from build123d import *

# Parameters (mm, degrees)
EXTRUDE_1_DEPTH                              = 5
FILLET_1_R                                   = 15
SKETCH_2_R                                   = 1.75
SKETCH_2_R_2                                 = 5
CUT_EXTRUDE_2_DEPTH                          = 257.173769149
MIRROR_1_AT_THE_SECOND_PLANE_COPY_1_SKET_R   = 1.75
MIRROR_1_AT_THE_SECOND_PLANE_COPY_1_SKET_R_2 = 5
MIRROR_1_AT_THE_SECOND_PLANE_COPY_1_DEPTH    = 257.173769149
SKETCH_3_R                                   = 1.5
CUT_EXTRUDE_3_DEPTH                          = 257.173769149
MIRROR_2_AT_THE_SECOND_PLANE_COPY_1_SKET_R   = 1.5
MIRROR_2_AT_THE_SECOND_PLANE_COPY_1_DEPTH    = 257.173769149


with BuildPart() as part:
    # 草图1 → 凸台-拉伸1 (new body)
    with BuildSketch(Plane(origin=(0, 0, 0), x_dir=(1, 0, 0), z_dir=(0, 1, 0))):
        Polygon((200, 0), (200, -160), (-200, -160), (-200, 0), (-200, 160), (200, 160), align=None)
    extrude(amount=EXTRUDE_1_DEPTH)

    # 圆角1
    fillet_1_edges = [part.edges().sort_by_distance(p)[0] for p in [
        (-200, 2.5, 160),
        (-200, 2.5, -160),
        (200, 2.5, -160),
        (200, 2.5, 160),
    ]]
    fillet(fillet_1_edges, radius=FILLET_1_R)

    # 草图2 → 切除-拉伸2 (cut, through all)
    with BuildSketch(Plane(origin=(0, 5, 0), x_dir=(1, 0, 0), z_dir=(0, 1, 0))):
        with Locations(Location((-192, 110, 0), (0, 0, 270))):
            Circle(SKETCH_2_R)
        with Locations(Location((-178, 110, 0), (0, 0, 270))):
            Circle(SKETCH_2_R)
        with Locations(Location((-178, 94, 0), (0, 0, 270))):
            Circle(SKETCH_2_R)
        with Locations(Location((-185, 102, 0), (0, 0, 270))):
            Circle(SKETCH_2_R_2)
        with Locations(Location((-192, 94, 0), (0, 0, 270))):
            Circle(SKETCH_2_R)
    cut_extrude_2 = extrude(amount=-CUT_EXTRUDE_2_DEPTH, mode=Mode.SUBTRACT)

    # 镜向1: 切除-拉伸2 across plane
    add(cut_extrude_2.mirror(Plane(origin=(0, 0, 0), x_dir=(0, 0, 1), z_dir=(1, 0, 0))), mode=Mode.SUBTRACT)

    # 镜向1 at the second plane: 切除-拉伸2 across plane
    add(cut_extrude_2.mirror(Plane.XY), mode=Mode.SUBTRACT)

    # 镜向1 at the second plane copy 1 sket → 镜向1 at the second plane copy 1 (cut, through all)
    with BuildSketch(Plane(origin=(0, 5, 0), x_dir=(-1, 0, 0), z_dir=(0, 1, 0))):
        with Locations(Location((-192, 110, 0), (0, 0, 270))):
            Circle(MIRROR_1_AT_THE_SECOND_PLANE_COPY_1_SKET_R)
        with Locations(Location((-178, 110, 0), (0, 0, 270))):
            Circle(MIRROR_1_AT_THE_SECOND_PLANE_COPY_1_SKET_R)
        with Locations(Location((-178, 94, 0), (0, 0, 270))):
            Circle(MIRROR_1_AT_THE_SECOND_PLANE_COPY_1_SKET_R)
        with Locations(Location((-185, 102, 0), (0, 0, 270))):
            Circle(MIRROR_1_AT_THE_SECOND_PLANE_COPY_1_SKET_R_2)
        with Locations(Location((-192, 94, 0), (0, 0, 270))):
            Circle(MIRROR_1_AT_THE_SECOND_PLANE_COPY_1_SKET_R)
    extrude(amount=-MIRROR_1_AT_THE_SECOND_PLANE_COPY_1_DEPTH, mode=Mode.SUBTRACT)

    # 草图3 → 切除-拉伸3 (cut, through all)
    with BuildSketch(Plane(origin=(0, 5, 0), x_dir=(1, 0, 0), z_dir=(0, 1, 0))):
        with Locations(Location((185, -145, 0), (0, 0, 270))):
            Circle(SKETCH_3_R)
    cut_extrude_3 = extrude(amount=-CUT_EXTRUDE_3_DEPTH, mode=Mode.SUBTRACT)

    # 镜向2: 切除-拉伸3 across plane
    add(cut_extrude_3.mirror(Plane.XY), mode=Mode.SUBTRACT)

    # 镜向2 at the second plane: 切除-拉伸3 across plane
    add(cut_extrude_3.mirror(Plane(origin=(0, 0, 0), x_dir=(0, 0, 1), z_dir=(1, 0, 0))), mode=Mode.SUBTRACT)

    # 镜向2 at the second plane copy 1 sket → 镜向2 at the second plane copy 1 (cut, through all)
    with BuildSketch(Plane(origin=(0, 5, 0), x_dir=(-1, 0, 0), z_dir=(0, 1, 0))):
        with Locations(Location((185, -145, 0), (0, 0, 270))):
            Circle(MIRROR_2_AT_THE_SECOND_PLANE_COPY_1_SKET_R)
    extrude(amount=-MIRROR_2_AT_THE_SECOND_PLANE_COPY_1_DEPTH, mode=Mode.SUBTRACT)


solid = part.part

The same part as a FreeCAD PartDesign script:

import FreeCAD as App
import Part
import Sketcher

V = App.Vector
Q = App.Units.Quantity


def edges_at(feature, points):
    """Names of the edges that pass closest to the given points."""
    edges = feature.Shape.Edges
    near = lambda p: min(range(len(edges)), key=lambda i: edges[i].distToShape(Part.Vertex(*p))[0])
    return sorted({f"Edge{near(p) + 1}" for p in points})


def add_polygon(sketch, points):
    """Adds a closed chain of lines whose ends are joined by coincident constraints."""
    first, n = sketch.GeometryCount, len(points)
    for a, b in zip(points, points[1:] + points[:1]):
        sketch.addGeometry(Part.LineSegment(App.Vector(*a, 0), App.Vector(*b, 0)), False)
    for i in range(n):
        sketch.addConstraint(Sketcher.Constraint("Coincident", first + i, 2, first + (i + 1) % n, 1))

doc = App.newDocument("Part")
params = doc.addObject("Spreadsheet::Sheet", "Params")
for row, (alias, value) in enumerate([
    ("sketch1_width", "400 mm"),
    ("sketch1_height", "320 mm"),
    ("pad1_length", "5 mm"),
    ("fillet_radius", "15 mm"),
    ("sketch2_diameter", "10 mm"),
    ("sketch2_diameter2", "3.5 mm"),
    ("sketch3_diameter", "10 mm"),
    ("sketch3_diameter2", "3.5 mm"),
    ("sketch4_diameter", "3 mm"),
    ("sketch5_diameter", "3 mm"),
], start=1):
    params.set(f"A{row}", alias)
    params.set(f"B{row}", "=" + value)
    params.setAlias(f"B{row}", alias)

body = doc.addObject("PartDesign::Body", "Body")

# Sketch on XZ plane
sketch1 = doc.addObject("Sketcher::SketchObject", "Sketch")
body.addObject(sketch1)
sketch1.AttachmentSupport = (doc.XZ_Plane, [""])
sketch1.MapMode = "FlatFace"
add_polygon(sketch1, [(200, 160), (200, -160), (-200, -160), (-200, 160)])  # lines 0-3
sketch1.addConstraint(Sketcher.Constraint("Vertical", 0))
sketch1.addConstraint(Sketcher.Constraint("Horizontal", 1))
sketch1.addConstraint(Sketcher.Constraint("Vertical", 2))
sketch1.addConstraint(Sketcher.Constraint("Horizontal", 3))
sketch1.addConstraint(Sketcher.Constraint("Symmetric", 0, 2, 2, 2, -1, 1))
sketch1.addConstraint(Sketcher.Constraint("DistanceX", 1, 2, 1, 1, Q("400 mm")))
sketch1.addConstraint(Sketcher.Constraint("DistanceY", 0, 2, 0, 1, Q("320 mm")))
sketch1.setExpression("Constraints[9]", "Params.sketch1_width")
sketch1.setExpression("Constraints[10]", "Params.sketch1_height")
pad1 = doc.addObject("PartDesign::Pad", "Pad")
body.addObject(pad1)
pad1.Profile = sketch1
pad1.setExpression("Length", "Params.pad1_length")
pad1.Reversed = True
doc.recompute()

fillet = doc.addObject("PartDesign::Fillet", "Fillet")
body.addObject(fillet)
fillet.Base = (pad1, edges_at(pad1, [
    (-200, 2.5, 160),
    (-200, 2.5, -160),
    (200, 2.5, -160),
    (200, 2.5, 160),
]))
fillet.setExpression("Radius", "Params.fillet_radius")

# Sketch on XZ plane
sketch2 = doc.addObject("Sketcher::SketchObject", "Sketch001")
body.addObject(sketch2)
sketch2.AttachmentSupport = (doc.XZ_Plane, [""])
sketch2.MapMode = "FlatFace"
sketch2.AttachmentOffset = App.Placement(V(0, 0, -5), App.Rotation())
sketch2.addGeometry(Part.Circle(V(-192, -110, 0), V(0, 0, 1), 1.75), False)
sketch2.addGeometry(Part.Circle(V(-178, -110, 0), V(0, 0, 1), 1.75), False)
sketch2.addGeometry(Part.Circle(V(-178, -94, 0), V(0, 0, 1), 1.75), False)
sketch2.addGeometry(Part.Circle(V(-185, -102, 0), V(0, 0, 1), 5), False)
sketch2.addGeometry(Part.Circle(V(-192, -94, 0), V(0, 0, 1), 1.75), False)
sketch2.addConstraint(Sketcher.Constraint("Equal", 0, 1))
sketch2.addConstraint(Sketcher.Constraint("Equal", 1, 2))
sketch2.addConstraint(Sketcher.Constraint("Equal", 2, 4))
sketch2.addConstraint(Sketcher.Constraint("Horizontal", 0, 3, 1, 3))
sketch2.addConstraint(Sketcher.Constraint("Horizontal", 2, 3, 4, 3))
sketch2.addConstraint(Sketcher.Constraint("Vertical", 1, 3, 2, 3))
sketch2.addConstraint(Sketcher.Constraint("Vertical", 0, 3, 4, 3))
sketch2.addConstraint(Sketcher.Constraint("Diameter", 3, Q("10 mm")))
sketch2.addConstraint(Sketcher.Constraint("Diameter", 0, Q("3.5 mm")))
sketch2.addConstraint(Sketcher.Constraint("DistanceX", 0, 3, -1, 1, Q("192 mm")))
sketch2.addConstraint(Sketcher.Constraint("DistanceY", 0, 3, -1, 1, Q("110 mm")))
sketch2.addConstraint(Sketcher.Constraint("DistanceX", 1, 3, -1, 1, Q("178 mm")))
sketch2.addConstraint(Sketcher.Constraint("DistanceY", 2, 3, -1, 1, Q("94 mm")))
sketch2.addConstraint(Sketcher.Constraint("DistanceX", 3, 3, -1, 1, Q("185 mm")))
sketch2.addConstraint(Sketcher.Constraint("DistanceY", 3, 3, -1, 1, Q("102 mm")))
sketch2.setExpression("Constraints[7]", "Params.sketch2_diameter")
sketch2.setExpression("Constraints[8]", "Params.sketch2_diameter2")
pocket1 = doc.addObject("PartDesign::Pocket", "Pocket")
body.addObject(pocket1)
pocket1.Profile = sketch2
pocket1.Type = "ThroughAll"
pocket1.Reversed = True
doc.recompute()

mirrored = doc.addObject("PartDesign::Mirrored", "Mirrored")
body.addObject(mirrored)
mirrored.Originals = [pocket1]
mirrored.MirrorPlane = (doc.YZ_Plane, [""])
body.Tip = mirrored
doc.recompute()

mirrored2 = doc.addObject("PartDesign::Mirrored", "Mirrored001")
body.addObject(mirrored2)
mirrored2.Originals = [pocket1]
mirrored2.MirrorPlane = (doc.XY_Plane, [""])
body.Tip = mirrored2

# Sketch on XZ plane
sketch3 = doc.addObject("Sketcher::SketchObject", "Sketch002")
body.addObject(sketch3)
sketch3.AttachmentSupport = (doc.XZ_Plane, [""])
sketch3.MapMode = "FlatFace"
sketch3.AttachmentOffset = App.Placement(V(0, 0, -5), App.Rotation())
sketch3.addGeometry(Part.Circle(V(192, 110, 0), V(0, 0, 1), 1.75), False)
sketch3.addGeometry(Part.Circle(V(178, 110, 0), V(0, 0, 1), 1.75), False)
sketch3.addGeometry(Part.Circle(V(178, 94, 0), V(0, 0, 1), 1.75), False)
sketch3.addGeometry(Part.Circle(V(185, 102, 0), V(0, 0, 1), 5), False)
sketch3.addGeometry(Part.Circle(V(192, 94, 0), V(0, 0, 1), 1.75), False)
sketch3.addConstraint(Sketcher.Constraint("Equal", 0, 1))
sketch3.addConstraint(Sketcher.Constraint("Equal", 1, 2))
sketch3.addConstraint(Sketcher.Constraint("Equal", 2, 4))
sketch3.addConstraint(Sketcher.Constraint("Horizontal", 0, 3, 1, 3))
sketch3.addConstraint(Sketcher.Constraint("Horizontal", 2, 3, 4, 3))
sketch3.addConstraint(Sketcher.Constraint("Vertical", 1, 3, 2, 3))
sketch3.addConstraint(Sketcher.Constraint("Vertical", 0, 3, 4, 3))
sketch3.addConstraint(Sketcher.Constraint("Diameter", 3, Q("10 mm")))
sketch3.addConstraint(Sketcher.Constraint("Diameter", 0, Q("3.5 mm")))
sketch3.addConstraint(Sketcher.Constraint("DistanceX", -1, 1, 0, 3, Q("192 mm")))
sketch3.addConstraint(Sketcher.Constraint("DistanceY", -1, 1, 0, 3, Q("110 mm")))
sketch3.addConstraint(Sketcher.Constraint("DistanceX", -1, 1, 1, 3, Q("178 mm")))
sketch3.addConstraint(Sketcher.Constraint("DistanceY", -1, 1, 2, 3, Q("94 mm")))
sketch3.addConstraint(Sketcher.Constraint("DistanceX", -1, 1, 3, 3, Q("185 mm")))
sketch3.addConstraint(Sketcher.Constraint("DistanceY", -1, 1, 3, 3, Q("102 mm")))
sketch3.setExpression("Constraints[7]", "Params.sketch3_diameter")
sketch3.setExpression("Constraints[8]", "Params.sketch3_diameter2")
pocket2 = doc.addObject("PartDesign::Pocket", "Pocket001")
body.addObject(pocket2)
pocket2.Profile = sketch3
pocket2.Type = "ThroughAll"
pocket2.Reversed = True

# Sketch on XZ plane
sketch4 = doc.addObject("Sketcher::SketchObject", "Sketch003")
body.addObject(sketch4)
sketch4.AttachmentSupport = (doc.XZ_Plane, [""])
sketch4.MapMode = "FlatFace"
sketch4.AttachmentOffset = App.Placement(V(0, 0, -5), App.Rotation())
sketch4.addGeometry(Part.Circle(V(185, 145, 0), V(0, 0, 1), 1.5), False)
sketch4.addConstraint(Sketcher.Constraint("Diameter", 0, Q("3 mm")))
sketch4.addConstraint(Sketcher.Constraint("DistanceX", -1, 1, 0, 3, Q("185 mm")))
sketch4.addConstraint(Sketcher.Constraint("DistanceY", -1, 1, 0, 3, Q("145 mm")))
sketch4.setExpression("Constraints[0]", "Params.sketch4_diameter")
pocket3 = doc.addObject("PartDesign::Pocket", "Pocket002")
body.addObject(pocket3)
pocket3.Profile = sketch4
pocket3.Type = "ThroughAll"
pocket3.Reversed = True
doc.recompute()

mirrored3 = doc.addObject("PartDesign::Mirrored", "Mirrored002")
body.addObject(mirrored3)
mirrored3.Originals = [pocket3]
mirrored3.MirrorPlane = (doc.XY_Plane, [""])
body.Tip = mirrored3
doc.recompute()

mirrored4 = doc.addObject("PartDesign::Mirrored", "Mirrored003")
body.addObject(mirrored4)
mirrored4.Originals = [pocket3]
mirrored4.MirrorPlane = (doc.YZ_Plane, [""])
body.Tip = mirrored4

# Sketch on XZ plane
sketch5 = doc.addObject("Sketcher::SketchObject", "Sketch004")
body.addObject(sketch5)
sketch5.AttachmentSupport = (doc.XZ_Plane, [""])
sketch5.MapMode = "FlatFace"
sketch5.AttachmentOffset = App.Placement(V(0, 0, -5), App.Rotation())
sketch5.addGeometry(Part.Circle(V(-185, -145, 0), V(0, 0, 1), 1.5), False)
sketch5.addConstraint(Sketcher.Constraint("Diameter", 0, Q("3 mm")))
sketch5.addConstraint(Sketcher.Constraint("DistanceX", 0, 3, -1, 1, Q("185 mm")))
sketch5.addConstraint(Sketcher.Constraint("DistanceY", 0, 3, -1, 1, Q("145 mm")))
sketch5.setExpression("Constraints[0]", "Params.sketch5_diameter")
pocket4 = doc.addObject("PartDesign::Pocket", "Pocket003")
body.addObject(pocket4)
pocket4.Profile = sketch5
pocket4.Type = "ThroughAll"
pocket4.Reversed = True

doc.recompute()
